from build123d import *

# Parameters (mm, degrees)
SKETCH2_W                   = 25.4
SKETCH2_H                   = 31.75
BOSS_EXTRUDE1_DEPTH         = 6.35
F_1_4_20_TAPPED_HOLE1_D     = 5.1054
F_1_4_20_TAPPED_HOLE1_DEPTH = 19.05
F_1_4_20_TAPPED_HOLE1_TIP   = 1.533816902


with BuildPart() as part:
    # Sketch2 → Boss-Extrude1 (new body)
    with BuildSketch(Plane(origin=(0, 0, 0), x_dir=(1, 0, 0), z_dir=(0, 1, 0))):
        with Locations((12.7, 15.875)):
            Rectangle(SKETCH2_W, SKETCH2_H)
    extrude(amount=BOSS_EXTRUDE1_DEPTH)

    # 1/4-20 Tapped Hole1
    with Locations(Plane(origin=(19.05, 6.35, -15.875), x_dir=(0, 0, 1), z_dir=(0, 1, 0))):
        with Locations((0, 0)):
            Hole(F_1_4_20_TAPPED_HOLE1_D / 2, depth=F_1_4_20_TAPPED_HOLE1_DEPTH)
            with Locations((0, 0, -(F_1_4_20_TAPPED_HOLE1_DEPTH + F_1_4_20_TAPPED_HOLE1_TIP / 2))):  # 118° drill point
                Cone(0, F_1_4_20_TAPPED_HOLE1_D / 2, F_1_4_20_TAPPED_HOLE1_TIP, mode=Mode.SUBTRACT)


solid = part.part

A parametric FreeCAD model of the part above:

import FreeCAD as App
import Part
import Sketcher
from FreeCAD import Vector
Q = App.Units.Quantity

doc = App.newDocument("Part")
params = doc.addObject("Spreadsheet::Sheet", "Params")
for row, (alias, value) in enumerate([
    ("sketch1_width", "1 in"),
    ("sketch1_height", "1.25 in"),
    ("pad1_length", "0.25 in"),
    ("sketch2_diameter", "0.201 in"),
    ("hole_diameter", "0.201 in"),
    ("hole_depth", "0.75 in"),
], start=1):
    params.set(f"A{row}", alias)
    params.set(f"B{row}", "=" + value)
    params.setAlias(f"B{row}", alias)

body = doc.addObject("PartDesign::Body", "Body")

# Sketch on XZ plane
sketch1 = body.newObject("Sketcher::SketchObject", "Sketch")
sketch1.AttachmentSupport = (doc.getObject("XZ_Plane"), [""])
sketch1.MapMode = "FlatFace"
sketch1.addGeometry(Part.LineSegment(Vector(0, -32, 0), Vector(0, 0, 0)), False)
sketch1.addGeometry(Part.LineSegment(Vector(0, 0, 0), Vector(25, 0, 0)), False)
sketch1.addGeometry(Part.LineSegment(Vector(25, 0, 0), Vector(25, -32, 0)), False)
sketch1.addGeometry(Part.LineSegment(Vector(25, -32, 0), Vector(0, -32, 0)), False)
sketch1.addConstraint(Sketcher.Constraint("Coincident", 0, 2, 1, 1))
sketch1.addConstraint(Sketcher.Constraint("Coincident", 1, 2, 2, 1))
sketch1.addConstraint(Sketcher.Constraint("Coincident", 2, 2, 3, 1))
sketch1.addConstraint(Sketcher.Constraint("Coincident", 3, 2, 0, 1))
sketch1.addConstraint(Sketcher.Constraint("Vertical", 0))
sketch1.addConstraint(Sketcher.Constraint("Horizontal", 1))
sketch1.addConstraint(Sketcher.Constraint("Vertical", 2))
sketch1.addConstraint(Sketcher.Constraint("Horizontal", 3))
sketch1.addConstraint(Sketcher.Constraint("Coincident", 0, 2, -1, 1))
sketch1.addConstraint(Sketcher.Constraint("DistanceX", 1, 1, 1, 2, Q("1 in")))
sketch1.addConstraint(Sketcher.Constraint("DistanceY", 0, 1, 0, 2, Q("1.25 in")))
sketch1.setExpression("Constraints[9]", "Params.sketch1_width")
sketch1.setExpression("Constraints[10]", "Params.sketch1_height")
pad1 = body.newObject("PartDesign::Pad", "Pad")
pad1.Profile = sketch1
pad1.setExpression("Length", "Params.pad1_length")
pad1.Reversed = True

# Sketch on XZ plane
sketch2 = body.newObject("Sketcher::SketchObject", "Sketch001")
sketch2.AttachmentSupport = (doc.getObject("XZ_Plane"), [""])
sketch2.MapMode = "FlatFace"
sketch2.AttachmentOffset = App.Placement(Vector(0, 0, -0.25 * 25.4), App.Rotation())
sketch2.addGeometry(Part.Circle(Vector(19.1, -15.9, 0), Vector(0, 0, 1), 2.6), False)
sketch2.addConstraint(Sketcher.Constraint("Diameter", 0, Q("0.201 in")))
sketch2.addConstraint(Sketcher.Constraint("DistanceX", -1, 1, 0, 3, Q("0.75 in")))
sketch2.addConstraint(Sketcher.Constraint("DistanceY", 0, 3, -1, 1, Q("0.625 in")))
sketch2.setExpression("Constraints[0]", "Params.sketch2_diameter")
doc.recompute()
hole = body.newObject("PartDesign::Hole", "Hole")
hole.Profile = sketch2
hole.ThreadType = "None"
hole.setExpression("Diameter", "Params.hole_diameter")
hole.DepthType = "Dimension"
hole.setExpression("Depth", "Params.hole_depth")
hole.DrillPoint = "Angled"
hole.DrillPointAngle = 118
hole.Reversed = True

doc.recompute()
